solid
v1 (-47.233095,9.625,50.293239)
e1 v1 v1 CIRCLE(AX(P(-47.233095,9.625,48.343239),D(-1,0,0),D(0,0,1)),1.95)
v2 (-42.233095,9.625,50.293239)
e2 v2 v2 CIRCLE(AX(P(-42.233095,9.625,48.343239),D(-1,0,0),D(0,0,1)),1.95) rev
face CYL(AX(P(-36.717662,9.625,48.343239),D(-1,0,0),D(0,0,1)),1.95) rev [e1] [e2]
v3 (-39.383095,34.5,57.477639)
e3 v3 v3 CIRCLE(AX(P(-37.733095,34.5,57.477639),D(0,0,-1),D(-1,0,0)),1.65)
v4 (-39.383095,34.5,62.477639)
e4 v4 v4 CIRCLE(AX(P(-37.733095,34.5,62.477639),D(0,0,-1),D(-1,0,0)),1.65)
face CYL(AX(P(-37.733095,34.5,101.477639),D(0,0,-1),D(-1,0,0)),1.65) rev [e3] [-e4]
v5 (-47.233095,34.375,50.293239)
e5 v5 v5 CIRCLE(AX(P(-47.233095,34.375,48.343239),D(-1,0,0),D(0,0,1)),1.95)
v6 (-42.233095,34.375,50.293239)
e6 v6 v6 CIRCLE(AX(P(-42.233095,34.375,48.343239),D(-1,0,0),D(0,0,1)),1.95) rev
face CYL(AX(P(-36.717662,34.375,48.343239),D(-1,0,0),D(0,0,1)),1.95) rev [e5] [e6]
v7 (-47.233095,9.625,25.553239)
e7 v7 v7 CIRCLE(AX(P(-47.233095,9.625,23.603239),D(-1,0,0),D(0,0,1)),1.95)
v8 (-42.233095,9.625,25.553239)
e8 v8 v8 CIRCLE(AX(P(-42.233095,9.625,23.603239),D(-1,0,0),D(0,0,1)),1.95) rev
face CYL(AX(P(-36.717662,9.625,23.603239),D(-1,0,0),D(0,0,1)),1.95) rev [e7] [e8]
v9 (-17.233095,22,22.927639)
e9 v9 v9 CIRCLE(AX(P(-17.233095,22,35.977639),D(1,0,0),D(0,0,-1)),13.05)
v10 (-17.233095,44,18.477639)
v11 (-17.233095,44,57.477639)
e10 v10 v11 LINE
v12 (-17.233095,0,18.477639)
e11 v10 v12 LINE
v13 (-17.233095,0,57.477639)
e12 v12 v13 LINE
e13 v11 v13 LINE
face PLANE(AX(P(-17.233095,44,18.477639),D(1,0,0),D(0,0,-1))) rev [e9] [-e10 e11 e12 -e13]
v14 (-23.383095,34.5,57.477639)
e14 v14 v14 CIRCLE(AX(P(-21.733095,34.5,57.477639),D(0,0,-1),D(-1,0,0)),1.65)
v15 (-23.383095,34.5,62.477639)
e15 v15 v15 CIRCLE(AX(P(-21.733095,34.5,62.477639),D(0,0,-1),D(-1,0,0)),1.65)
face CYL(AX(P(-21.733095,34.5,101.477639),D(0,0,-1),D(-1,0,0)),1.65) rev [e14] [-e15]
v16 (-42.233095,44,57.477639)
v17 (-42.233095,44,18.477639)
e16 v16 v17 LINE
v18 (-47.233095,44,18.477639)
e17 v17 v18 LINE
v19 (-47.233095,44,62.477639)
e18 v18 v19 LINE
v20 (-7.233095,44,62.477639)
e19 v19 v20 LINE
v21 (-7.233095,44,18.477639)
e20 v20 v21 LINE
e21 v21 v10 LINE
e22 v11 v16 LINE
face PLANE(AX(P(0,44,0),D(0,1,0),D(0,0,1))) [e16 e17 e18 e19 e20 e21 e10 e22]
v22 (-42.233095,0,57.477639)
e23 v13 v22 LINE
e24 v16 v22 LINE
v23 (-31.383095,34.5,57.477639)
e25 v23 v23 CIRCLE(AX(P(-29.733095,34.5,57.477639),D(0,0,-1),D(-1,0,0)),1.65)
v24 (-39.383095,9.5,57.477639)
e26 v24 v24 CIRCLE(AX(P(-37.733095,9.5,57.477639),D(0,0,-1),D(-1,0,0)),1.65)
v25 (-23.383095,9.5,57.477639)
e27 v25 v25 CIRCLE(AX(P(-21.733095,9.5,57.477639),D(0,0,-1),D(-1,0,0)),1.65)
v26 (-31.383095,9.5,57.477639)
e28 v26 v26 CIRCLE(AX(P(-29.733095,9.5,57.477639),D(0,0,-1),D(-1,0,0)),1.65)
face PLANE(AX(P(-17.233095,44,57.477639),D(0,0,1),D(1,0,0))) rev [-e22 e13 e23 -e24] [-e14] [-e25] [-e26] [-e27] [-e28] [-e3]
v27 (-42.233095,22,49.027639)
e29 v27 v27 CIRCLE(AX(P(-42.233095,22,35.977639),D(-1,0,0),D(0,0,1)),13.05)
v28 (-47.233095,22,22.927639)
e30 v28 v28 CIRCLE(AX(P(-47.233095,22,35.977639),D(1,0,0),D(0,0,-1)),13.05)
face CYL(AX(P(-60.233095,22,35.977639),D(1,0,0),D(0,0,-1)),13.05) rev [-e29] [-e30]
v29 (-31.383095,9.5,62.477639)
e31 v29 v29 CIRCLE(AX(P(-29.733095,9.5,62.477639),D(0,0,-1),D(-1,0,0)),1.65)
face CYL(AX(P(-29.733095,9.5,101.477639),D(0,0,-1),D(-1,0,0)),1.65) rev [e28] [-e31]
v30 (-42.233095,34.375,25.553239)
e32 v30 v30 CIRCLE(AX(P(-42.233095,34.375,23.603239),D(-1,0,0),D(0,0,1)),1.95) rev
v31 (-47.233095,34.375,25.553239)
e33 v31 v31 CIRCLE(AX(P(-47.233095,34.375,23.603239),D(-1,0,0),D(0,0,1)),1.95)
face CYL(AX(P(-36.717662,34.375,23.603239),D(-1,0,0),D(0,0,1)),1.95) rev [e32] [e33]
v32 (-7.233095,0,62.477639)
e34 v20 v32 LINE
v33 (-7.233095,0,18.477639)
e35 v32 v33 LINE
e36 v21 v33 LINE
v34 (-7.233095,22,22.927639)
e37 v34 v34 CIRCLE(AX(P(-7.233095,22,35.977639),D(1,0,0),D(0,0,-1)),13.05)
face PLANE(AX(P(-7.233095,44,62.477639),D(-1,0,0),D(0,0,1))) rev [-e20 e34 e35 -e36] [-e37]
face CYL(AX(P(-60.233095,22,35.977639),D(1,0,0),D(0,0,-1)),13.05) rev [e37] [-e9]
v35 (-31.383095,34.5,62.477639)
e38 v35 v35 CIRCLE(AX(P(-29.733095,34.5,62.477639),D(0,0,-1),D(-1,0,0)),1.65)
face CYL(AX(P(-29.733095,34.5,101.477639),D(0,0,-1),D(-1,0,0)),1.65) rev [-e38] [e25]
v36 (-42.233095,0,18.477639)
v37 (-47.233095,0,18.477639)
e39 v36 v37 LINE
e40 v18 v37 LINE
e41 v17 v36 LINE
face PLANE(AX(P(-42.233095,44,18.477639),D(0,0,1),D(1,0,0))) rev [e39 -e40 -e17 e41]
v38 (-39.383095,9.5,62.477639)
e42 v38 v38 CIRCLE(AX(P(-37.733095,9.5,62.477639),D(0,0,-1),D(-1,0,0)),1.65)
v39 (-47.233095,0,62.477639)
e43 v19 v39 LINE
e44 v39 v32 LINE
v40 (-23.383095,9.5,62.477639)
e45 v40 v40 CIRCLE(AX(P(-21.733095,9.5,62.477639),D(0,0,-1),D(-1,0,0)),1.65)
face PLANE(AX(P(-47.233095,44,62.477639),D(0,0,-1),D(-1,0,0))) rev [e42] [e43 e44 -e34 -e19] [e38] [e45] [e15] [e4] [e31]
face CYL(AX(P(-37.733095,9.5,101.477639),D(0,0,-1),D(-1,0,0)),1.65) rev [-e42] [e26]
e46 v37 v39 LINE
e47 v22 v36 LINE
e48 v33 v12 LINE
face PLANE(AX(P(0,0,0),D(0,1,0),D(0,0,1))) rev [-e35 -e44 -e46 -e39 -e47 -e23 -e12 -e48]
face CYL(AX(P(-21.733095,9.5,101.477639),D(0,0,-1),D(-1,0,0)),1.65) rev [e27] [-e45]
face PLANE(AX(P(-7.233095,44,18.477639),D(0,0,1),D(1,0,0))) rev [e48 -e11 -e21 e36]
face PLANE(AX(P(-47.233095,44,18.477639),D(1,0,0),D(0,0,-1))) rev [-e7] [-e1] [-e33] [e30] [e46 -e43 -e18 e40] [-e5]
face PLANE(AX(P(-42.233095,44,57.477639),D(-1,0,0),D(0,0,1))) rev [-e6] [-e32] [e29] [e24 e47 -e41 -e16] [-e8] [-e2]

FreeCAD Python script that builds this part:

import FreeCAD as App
import Part
import Sketcher


def add_polygon(sketch, points):
    """Adds a closed chain of lines whose ends are joined by coincident constraints."""
    first, n = sketch.GeometryCount, len(points)
    for a, b in zip(points, points[1:] + points[:1]):
        sketch.addGeometry(Part.LineSegment(App.Vector(*a, 0), App.Vector(*b, 0)), False)
    for i in range(n):
        sketch.addConstraint(Sketcher.Constraint("Coincident", first + i, 2, first + (i + 1) % n, 1))

doc = App.newDocument("Part")
body = doc.addObject("PartDesign::Body", "Body")

sketch1 = body.newObject("Sketcher::SketchObject", "Sketch")
sketch1.AttachmentSupport = (doc.getObject("XZ_Plane"), [""])
sketch1.MapMode = "FlatFace"
add_polygon(sketch1, [(-47, 18), (-47, 62), (-7, 62), (-7, 18), (-17, 18), (-17, 57), (-42, 57), (-42, 18)])
sketch1.addConstraint([
    Sketcher.Constraint("Vertical", 0),
    Sketcher.Constraint("Horizontal", 1),
    Sketcher.Constraint("Vertical", 2),
    Sketcher.Constraint("Horizontal", 3),
    Sketcher.Constraint("Vertical", 4),
    Sketcher.Constraint("Horizontal", 5),
    Sketcher.Constraint("Vertical", 6),
    Sketcher.Constraint("Horizontal", 7),
    Sketcher.Constraint("Horizontal", 3, 2, 6, 2),
    Sketcher.Constraint("DistanceX", 1, 1, 1, 2, 40.0),
    Sketcher.Constraint("DistanceX", 3, 2, 3, 1, 10.0),
    Sketcher.Constraint("DistanceX", 5, 2, 5, 1, 25.0),
    Sketcher.Constraint("DistanceY", 0, 1, 0, 2, 44.0),
    Sketcher.Constraint("DistanceY", 4, 1, 4, 2, 39.0),
    Sketcher.Constraint("DistanceY", -1, 1, 0, 2, 62.477639),
    Sketcher.Constraint("DistanceX", 0, 2, -1, 1, 47.233095),
])
pad1 = body.newObject("PartDesign::Pad", "Pad")
pad1.Profile = sketch1
pad1.Length = 44
pad1.Reversed = True

sketch2 = body.newObject("Sketcher::SketchObject", "Sketch001")
sketch2.AttachmentSupport = (doc.getObject("XY_Plane"), [""])
sketch2.MapMode = "FlatFace"
sketch2.AttachmentOffset = App.Placement(App.Vector(0, 0, 57.477639), App.Rotation())
sketch2.addGeometry([
    Part.Circle(App.Vector(-37.7, 34.5, 0), App.Vector(0, 0, 1), 1.6),
    Part.Circle(App.Vector(-37.7, 9.5, 0), App.Vector(0, 0, 1), 1.6),
    Part.Circle(App.Vector(-29.7, 34.5, 0), App.Vector(0, 0, 1), 1.6),
    Part.Circle(App.Vector(-29.7, 9.5, 0), App.Vector(0, 0, 1), 1.6),
    Part.Circle(App.Vector(-21.7, 34.5, 0), App.Vector(0, 0, 1), 1.6),
    Part.Circle(App.Vector(-21.7, 9.5, 0), App.Vector(0, 0, 1), 1.6),
], False)
sketch2.addConstraint([
    Sketcher.Constraint("Equal", 0, 1),
    Sketcher.Constraint("Equal", 1, 2),
    Sketcher.Constraint("Equal", 2, 3),
    Sketcher.Constraint("Equal", 3, 4),
    Sketcher.Constraint("Equal", 4, 5),
    Sketcher.Constraint("Horizontal", 0, 3, 2, 3),
    Sketcher.Constraint("Horizontal", 1, 3, 3, 3),
    Sketcher.Constraint("Horizontal", 2, 3, 4, 3),
    Sketcher.Constraint("Horizontal", 3, 3, 5, 3),
    Sketcher.Constraint("Vertical", 0, 3, 1, 3),
    Sketcher.Constraint("Vertical", 2, 3, 3, 3),
    Sketcher.Constraint("Vertical", 4, 3, 5, 3),
    Sketcher.Constraint("Diameter", 0, 3.3),
    Sketcher.Constraint("DistanceY", 1, 3, 0, 3, 25.0),
    Sketcher.Constraint("DistanceX", 0, 3, 2, 3, 8.0),
    Sketcher.Constraint("DistanceX", 2, 3, 4, 3, 8.0),
    Sketcher.Constraint("DistanceY", -1, 1, 0, 3, 34.5),
    Sketcher.Constraint("DistanceX", 0, 3, -1, 1, 37.733095),
])
pocket1 = body.newObject("PartDesign::Pocket", "Pocket")
pocket1.Profile = sketch2
pocket1.Length = 44
pocket1.Reversed = True

sketch3 = body.newObject("Sketcher::SketchObject", "Sketch002")
sketch3.AttachmentSupport = (doc.getObject("YZ_Plane"), [""])
sketch3.MapMode = "FlatFace"
sketch3.AttachmentOffset = App.Placement(App.Vector(0, 0, -47.233095), App.Rotation())
sketch3.addGeometry([
    Part.Circle(App.Vector(34.4, 48.3, 0), App.Vector(0, 0, 1), 1.9),
    Part.Circle(App.Vector(34.4, 23.6, 0), App.Vector(0, 0, 1), 1.9),
    Part.Circle(App.Vector(9.6, 48.3, 0), App.Vector(0, 0, 1), 1.9),
    Part.Circle(App.Vector(9.6, 23.6, 0), App.Vector(0, 0, 1), 1.9),
], False)
sketch3.addConstraint([
    Sketcher.Constraint("Equal", 0, 1),
    Sketcher.Constraint("Equal", 1, 2),
    Sketcher.Constraint("Equal", 2, 3),
    Sketcher.Constraint("Horizontal", 0, 3, 2, 3),
    Sketcher.Constraint("Horizontal", 1, 3, 3, 3),
    Sketcher.Constraint("Vertical", 0, 3, 1, 3),
    Sketcher.Constraint("Vertical", 2, 3, 3, 3),
    Sketcher.Constraint("Diameter", 0, 3.9),
    Sketcher.Constraint("DistanceY", 1, 3, 0, 3, 24.74),
    Sketcher.Constraint("DistanceX", 2, 3, 0, 3, 24.75),
    Sketcher.Constraint("DistanceX", -1, 1, 0, 3, 34.375),
    Sketcher.Constraint("DistanceY", -1, 1, 0, 3, 48.343239),
])
pocket2 = body.newObject("PartDesign::Pocket", "Pocket001")
pocket2.Profile = sketch3
pocket2.Length = 5
pocket2.Reversed = True

sketch4 = body.newObject("Sketcher::SketchObject", "Sketch003")
sketch4.AttachmentSupport = (doc.getObject("YZ_Plane"), [""])
sketch4.MapMode = "FlatFace"
sketch4.AttachmentOffset = App.Placement(App.Vector(0, 0, -7.233095), App.Rotation())
sketch4.addGeometry(Part.Circle(App.Vector(22, 36, 0), App.Vector(0, 0, 1), 13), False)
sketch4.addConstraint([
    Sketcher.Constraint("Diameter", 0, 26.1),
    Sketcher.Constraint("DistanceX", -1, 1, 0, 3, 22.0),
    Sketcher.Constraint("DistanceY", -1, 1, 0, 3, 35.977639),
])
pocket3 = body.newObject("PartDesign::Pocket", "Pocket002")
pocket3.Profile = sketch4
pocket3.Length = 53

doc.recompute()
